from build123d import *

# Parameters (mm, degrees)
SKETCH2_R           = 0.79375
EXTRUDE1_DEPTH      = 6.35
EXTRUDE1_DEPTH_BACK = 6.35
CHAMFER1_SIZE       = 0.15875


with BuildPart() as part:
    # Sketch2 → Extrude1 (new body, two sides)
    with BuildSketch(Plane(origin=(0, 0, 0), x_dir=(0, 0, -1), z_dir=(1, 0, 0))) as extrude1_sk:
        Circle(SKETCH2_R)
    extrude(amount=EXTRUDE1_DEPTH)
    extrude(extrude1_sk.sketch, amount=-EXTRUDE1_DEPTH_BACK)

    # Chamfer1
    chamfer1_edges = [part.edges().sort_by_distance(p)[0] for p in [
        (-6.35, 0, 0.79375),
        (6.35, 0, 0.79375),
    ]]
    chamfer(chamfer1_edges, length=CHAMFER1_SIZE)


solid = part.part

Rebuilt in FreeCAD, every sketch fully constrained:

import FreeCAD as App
import Part
import Sketcher

V = App.Vector
Q = App.Units.Quantity


def edges_at(feature, points):
    """Names of the edges that pass closest to the given points."""
    edges = feature.Shape.Edges
    near = lambda p: min(range(len(edges)), key=lambda i: edges[i].distToShape(Part.Vertex(*p))[0])
    return sorted({f"Edge{near(p) + 1}" for p in points})

doc = App.newDocument("Part")
body = doc.addObject("PartDesign::Body", "Body")

# Sketch on YZ plane
sketch1 = doc.addObject("Sketcher::SketchObject", "Sketch")
body.addObject(sketch1)
sketch1.AttachmentSupport = (doc.YZ_Plane, [""])
sketch1.MapMode = "FlatFace"
sketch1.addGeometry(Part.Circle(V(0, 0, 0), V(0, 0, 1), 0.79375), False)
sketch1.addConstraint(Sketcher.Constraint("Coincident", 0, 3, -1, 1))
sketch1.addConstraint(Sketcher.Constraint("Diameter", 0, Q("0.0625 in")))
pad1 = doc.addObject("PartDesign::Pad", "Pad")
body.addObject(pad1)
pad1.Profile = sketch1
pad1.Type = "TwoLengths"
pad1.Length = Q("0.25 in")
pad1.Length2 = Q("0.25 in")
doc.recompute()

chamfer = doc.addObject("PartDesign::Chamfer", "Chamfer")
body.addObject(chamfer)
chamfer.Base = (pad1, edges_at(pad1, [(-6.35, 0, 0.794), (6.35, 0, 0.794)]))
chamfer.Size = 0.15875

doc.recompute()
